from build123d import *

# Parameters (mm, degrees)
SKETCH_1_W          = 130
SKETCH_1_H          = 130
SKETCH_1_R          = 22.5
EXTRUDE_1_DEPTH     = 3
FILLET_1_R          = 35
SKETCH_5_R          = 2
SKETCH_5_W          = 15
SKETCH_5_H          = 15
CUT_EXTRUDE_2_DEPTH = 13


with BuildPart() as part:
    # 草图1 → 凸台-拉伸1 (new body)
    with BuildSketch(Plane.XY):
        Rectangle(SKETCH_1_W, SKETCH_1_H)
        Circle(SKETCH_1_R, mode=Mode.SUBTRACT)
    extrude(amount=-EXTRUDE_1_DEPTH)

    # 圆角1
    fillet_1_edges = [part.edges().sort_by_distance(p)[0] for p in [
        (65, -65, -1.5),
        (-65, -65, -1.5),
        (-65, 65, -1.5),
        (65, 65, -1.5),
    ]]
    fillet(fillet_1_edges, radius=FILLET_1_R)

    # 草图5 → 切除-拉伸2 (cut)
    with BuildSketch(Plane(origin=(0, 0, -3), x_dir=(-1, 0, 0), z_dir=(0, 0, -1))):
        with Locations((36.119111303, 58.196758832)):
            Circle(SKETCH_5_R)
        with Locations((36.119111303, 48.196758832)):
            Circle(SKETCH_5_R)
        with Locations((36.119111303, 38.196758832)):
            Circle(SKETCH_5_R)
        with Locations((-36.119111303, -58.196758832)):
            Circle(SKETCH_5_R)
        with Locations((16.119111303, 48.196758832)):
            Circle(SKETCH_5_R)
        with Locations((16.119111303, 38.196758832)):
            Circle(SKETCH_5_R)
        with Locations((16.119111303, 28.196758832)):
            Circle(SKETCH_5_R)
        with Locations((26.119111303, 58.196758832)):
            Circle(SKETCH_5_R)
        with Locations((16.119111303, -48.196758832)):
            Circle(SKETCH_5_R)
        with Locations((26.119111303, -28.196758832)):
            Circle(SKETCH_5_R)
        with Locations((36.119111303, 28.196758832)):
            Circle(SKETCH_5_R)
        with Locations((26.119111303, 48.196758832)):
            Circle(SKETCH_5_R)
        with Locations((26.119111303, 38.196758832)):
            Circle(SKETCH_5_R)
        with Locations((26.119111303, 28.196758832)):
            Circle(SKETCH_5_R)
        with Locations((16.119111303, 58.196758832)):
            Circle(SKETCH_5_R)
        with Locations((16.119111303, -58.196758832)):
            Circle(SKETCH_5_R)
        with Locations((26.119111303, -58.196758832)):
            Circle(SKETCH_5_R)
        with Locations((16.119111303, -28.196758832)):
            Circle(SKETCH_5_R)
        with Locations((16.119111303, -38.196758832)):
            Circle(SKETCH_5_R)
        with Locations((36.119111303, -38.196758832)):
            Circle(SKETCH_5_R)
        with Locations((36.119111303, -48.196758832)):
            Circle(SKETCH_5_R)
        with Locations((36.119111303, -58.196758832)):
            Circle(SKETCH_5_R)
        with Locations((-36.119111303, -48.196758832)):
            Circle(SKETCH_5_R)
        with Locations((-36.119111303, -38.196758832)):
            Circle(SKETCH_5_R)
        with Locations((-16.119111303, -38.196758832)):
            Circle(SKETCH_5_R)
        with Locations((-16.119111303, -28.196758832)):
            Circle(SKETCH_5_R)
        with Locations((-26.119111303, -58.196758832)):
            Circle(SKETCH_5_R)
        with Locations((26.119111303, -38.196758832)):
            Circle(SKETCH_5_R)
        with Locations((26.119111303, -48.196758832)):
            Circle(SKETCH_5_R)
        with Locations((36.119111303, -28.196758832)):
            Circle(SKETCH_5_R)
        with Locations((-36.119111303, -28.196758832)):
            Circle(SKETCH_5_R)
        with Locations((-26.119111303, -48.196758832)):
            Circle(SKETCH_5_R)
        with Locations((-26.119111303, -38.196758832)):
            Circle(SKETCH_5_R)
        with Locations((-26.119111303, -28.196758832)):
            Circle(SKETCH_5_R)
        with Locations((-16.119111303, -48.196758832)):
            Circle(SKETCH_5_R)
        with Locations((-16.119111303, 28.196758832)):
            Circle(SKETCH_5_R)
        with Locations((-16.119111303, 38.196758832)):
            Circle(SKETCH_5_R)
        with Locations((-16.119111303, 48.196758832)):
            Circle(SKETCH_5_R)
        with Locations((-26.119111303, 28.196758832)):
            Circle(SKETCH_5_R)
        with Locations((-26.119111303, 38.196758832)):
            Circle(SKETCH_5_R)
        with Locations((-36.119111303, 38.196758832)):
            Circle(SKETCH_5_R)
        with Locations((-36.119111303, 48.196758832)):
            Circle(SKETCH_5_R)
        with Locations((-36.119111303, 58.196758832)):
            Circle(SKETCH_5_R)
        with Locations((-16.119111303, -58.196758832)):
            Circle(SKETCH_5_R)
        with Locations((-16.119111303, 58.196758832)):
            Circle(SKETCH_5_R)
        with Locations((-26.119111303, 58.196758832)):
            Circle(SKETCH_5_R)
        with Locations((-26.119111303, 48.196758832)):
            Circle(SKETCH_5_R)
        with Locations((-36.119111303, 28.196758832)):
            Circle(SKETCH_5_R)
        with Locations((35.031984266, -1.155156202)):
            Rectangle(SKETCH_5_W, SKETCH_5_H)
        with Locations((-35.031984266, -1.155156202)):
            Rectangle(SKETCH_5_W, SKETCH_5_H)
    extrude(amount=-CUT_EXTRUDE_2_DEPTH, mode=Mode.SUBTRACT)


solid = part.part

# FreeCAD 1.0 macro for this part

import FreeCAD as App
import Part
import Sketcher
Q = App.Units.Quantity


def edges_at(feature, points):
    """Names of the edges that pass closest to the given points."""
    edges = feature.Shape.Edges
    near = lambda p: min(range(len(edges)), key=lambda i: edges[i].distToShape(Part.Vertex(*p))[0])
    return sorted({f"Edge{near(p) + 1}" for p in points})


def add_polygon(sketch, points):
    """Adds a closed chain of lines whose ends are joined by coincident constraints."""
    first, n = sketch.GeometryCount, len(points)
    for a, b in zip(points, points[1:] + points[:1]):
        sketch.addGeometry(Part.LineSegment(App.Vector(*a, 0), App.Vector(*b, 0)), False)
    for i in range(n):
        sketch.addConstraint(Sketcher.Constraint("Coincident", first + i, 2, first + (i + 1) % n, 1))

doc = App.newDocument("Part")
params = doc.addObject("Spreadsheet::Sheet", "Params")
for row, (alias, value) in enumerate([
    ("sketch1_diameter", "45 mm"),
    ("sketch1_width", "130 mm"),
    ("pad1_length", "3 mm"),
    ("fillet_radius", "35 mm"),
    ("sketch2_diameter", "4 mm"),
    ("sketch2_width", "15 mm"),
    ("pocket1_length", "13 mm"),
], start=1):
    params.set(f"A{row}", alias)
    params.set(f"B{row}", "=" + value)
    params.setAlias(f"B{row}", alias)

body = doc.addObject("PartDesign::Body", "Body")

# Sketch on XY plane
sketch1 = doc.addObject("Sketcher::SketchObject", "Sketch")
body.addObject(sketch1)
sketch1.AttachmentSupport = (doc.XY_Plane, [""])
sketch1.MapMode = "FlatFace"
add_polygon(sketch1, [(-65, 65), (-65, -65), (65, -65), (65, 65)])  # lines 0-3
sketch1.addGeometry(Part.Circle(App.Vector(0, 0, 0), App.Vector(0, 0, 1), 22), False)  # 4
sketch1.addConstraint(Sketcher.Constraint("Vertical", 0))
sketch1.addConstraint(Sketcher.Constraint("Horizontal", 1))
sketch1.addConstraint(Sketcher.Constraint("Vertical", 2))
sketch1.addConstraint(Sketcher.Constraint("Horizontal", 3))
sketch1.addConstraint(Sketcher.Constraint("Coincident", 4, 3, -1, 1))
sketch1.addConstraint(Sketcher.Constraint("Symmetric", 0, 2, 2, 2, -1, 1))
sketch1.addConstraint(Sketcher.Constraint("Equal", 3, 0))
sketch1.addConstraint(Sketcher.Constraint("Diameter", 4, Q("45 mm")))
sketch1.addConstraint(Sketcher.Constraint("DistanceX", 1, 1, 1, 2, Q("130 mm")))
sketch1.setExpression("Constraints[11]", "Params.sketch1_diameter")
sketch1.setExpression("Constraints[12]", "Params.sketch1_width")
pad1 = doc.addObject("PartDesign::Pad", "Pad")
body.addObject(pad1)
pad1.Profile = sketch1
pad1.setExpression("Length", "Params.pad1_length")
pad1.Reversed = True
doc.recompute()

fillet = doc.addObject("PartDesign::Fillet", "Fillet")
body.addObject(fillet)
fillet.Base = (pad1, edges_at(pad1, [
    (65, -65, -1.5),
    (-65, -65, -1.5),
    (-65, 65, -1.5),
    (65, 65, -1.5),
]))
fillet.setExpression("Radius", "Params.fillet_radius")

# Sketch on XY plane
sketch2 = doc.addObject("Sketcher::SketchObject", "Sketch001")
body.addObject(sketch2)
sketch2.AttachmentSupport = (doc.XY_Plane, [""])
sketch2.MapMode = "FlatFace"
sketch2.AttachmentOffset = App.Placement(App.Vector(0, 0, -3), App.Rotation())
sketch2.addGeometry(Part.Circle(App.Vector(-36.1, 58.2, 0), App.Vector(0, 0, 1), 2), False)  # 0
sketch2.addGeometry(Part.Circle(App.Vector(-36.1, 48.2, 0), App.Vector(0, 0, 1), 2), False)  # 1
sketch2.addGeometry(Part.Circle(App.Vector(-36.1, 38.2, 0), App.Vector(0, 0, 1), 2), False)  # 2
sketch2.addGeometry(Part.Circle(App.Vector(36.1, -58.2, 0), App.Vector(0, 0, 1), 2), False)  # 3
sketch2.addGeometry(Part.Circle(App.Vector(-16.1, 48.2, 0), App.Vector(0, 0, 1), 2), False)  # 4
sketch2.addGeometry(Part.Circle(App.Vector(-16.1, 38.2, 0), App.Vector(0, 0, 1), 2), False)  # 5
sketch2.addGeometry(Part.Circle(App.Vector(-16.1, 28.2, 0), App.Vector(0, 0, 1), 2), False)  # 6
sketch2.addGeometry(Part.Circle(App.Vector(-26.1, 58.2, 0), App.Vector(0, 0, 1), 2), False)  # 7
sketch2.addGeometry(Part.Circle(App.Vector(-16.1, -48.2, 0), App.Vector(0, 0, 1), 2), False)  # 8
sketch2.addGeometry(Part.Circle(App.Vector(-26.1, -28.2, 0), App.Vector(0, 0, 1), 2), False)  # 9
sketch2.addGeometry(Part.Circle(App.Vector(-36.1, 28.2, 0), App.Vector(0, 0, 1), 2), False)  # 10
sketch2.addGeometry(Part.Circle(App.Vector(-26.1, 48.2, 0), App.Vector(0, 0, 1), 2), False)  # 11
sketch2.addGeometry(Part.Circle(App.Vector(-26.1, 38.2, 0), App.Vector(0, 0, 1), 2), False)  # 12
sketch2.addGeometry(Part.Circle(App.Vector(-26.1, 28.2, 0), App.Vector(0, 0, 1), 2), False)  # 13
sketch2.addGeometry(Part.Circle(App.Vector(-16.1, 58.2, 0), App.Vector(0, 0, 1), 2), False)  # 14
sketch2.addGeometry(Part.Circle(App.Vector(-16.1, -58.2, 0), App.Vector(0, 0, 1), 2), False)  # 15
sketch2.addGeometry(Part.Circle(App.Vector(-26.1, -58.2, 0), App.Vector(0, 0, 1), 2), False)  # 16
sketch2.addGeometry(Part.Circle(App.Vector(-16.1, -28.2, 0), App.Vector(0, 0, 1), 2), False)  # 17
sketch2.addGeometry(Part.Circle(App.Vector(-16.1, -38.2, 0), App.Vector(0, 0, 1), 2), False)  # 18
sketch2.addGeometry(Part.Circle(App.Vector(-36.1, -38.2, 0), App.Vector(0, 0, 1), 2), False)  # 19
sketch2.addGeometry(Part.Circle(App.Vector(-36.1, -48.2, 0), App.Vector(0, 0, 1), 2), False)  # 20
sketch2.addGeometry(Part.Circle(App.Vector(-36.1, -58.2, 0), App.Vector(0, 0, 1), 2), False)  # 21
sketch2.addGeometry(Part.Circle(App.Vector(36.1, -48.2, 0), App.Vector(0, 0, 1), 2), False)  # 22
sketch2.addGeometry(Part.Circle(App.Vector(36.1, -38.2, 0), App.Vector(0, 0, 1), 2), False)  # 23
sketch2.addGeometry(Part.Circle(App.Vector(16.1, -38.2, 0), App.Vector(0, 0, 1), 2), False)  # 24
sketch2.addGeometry(Part.Circle(App.Vector(16.1, -28.2, 0), App.Vector(0, 0, 1), 2), False)  # 25
sketch2.addGeometry(Part.Circle(App.Vector(26.1, -58.2, 0), App.Vector(0, 0, 1), 2), False)  # 26
sketch2.addGeometry(Part.Circle(App.Vector(-26.1, -38.2, 0), App.Vector(0, 0, 1), 2), False)  # 27
sketch2.addGeometry(Part.Circle(App.Vector(-26.1, -48.2, 0), App.Vector(0, 0, 1), 2), False)  # 28
sketch2.addGeometry(Part.Circle(App.Vector(-36.1, -28.2, 0), App.Vector(0, 0, 1), 2), False)  # 29
sketch2.addGeometry(Part.Circle(App.Vector(36.1, -28.2, 0), App.Vector(0, 0, 1), 2), False)  # 30
sketch2.addGeometry(Part.Circle(App.Vector(26.1, -48.2, 0), App.Vector(0, 0, 1), 2), False)  # 31
sketch2.addGeometry(Part.Circle(App.Vector(26.1, -38.2, 0), App.Vector(0, 0, 1), 2), False)  # 32
sketch2.addGeometry(Part.Circle(App.Vector(26.1, -28.2, 0), App.Vector(0, 0, 1), 2), False)  # 33
sketch2.addGeometry(Part.Circle(App.Vector(16.1, -48.2, 0), App.Vector(0, 0, 1), 2), False)  # 34
sketch2.addGeometry(Part.Circle(App.Vector(16.1, 28.2, 0), App.Vector(0, 0, 1), 2), False)  # 35
sketch2.addGeometry(Part.Circle(App.Vector(16.1, 38.2, 0), App.Vector(0, 0, 1), 2), False)  # 36
sketch2.addGeometry(Part.Circle(App.Vector(16.1, 48.2, 0), App.Vector(0, 0, 1), 2), False)  # 37
sketch2.addGeometry(Part.Circle(App.Vector(26.1, 28.2, 0), App.Vector(0, 0, 1), 2), False)  # 38
sketch2.addGeometry(Part.Circle(App.Vector(26.1, 38.2, 0), App.Vector(0, 0, 1), 2), False)  # 39
sketch2.addGeometry(Part.Circle(App.Vector(36.1, 38.2, 0), App.Vector(0, 0, 1), 2), False)  # 40
sketch2.addGeometry(Part.Circle(App.Vector(36.1, 48.2, 0), App.Vector(0, 0, 1), 2), False)  # 41
sketch2.addGeometry(Part.Circle(App.Vector(36.1, 58.2, 0), App.Vector(0, 0, 1), 2), False)  # 42
sketch2.addGeometry(Part.Circle(App.Vector(16.1, -58.2, 0), App.Vector(0, 0, 1), 2), False)  # 43
sketch2.addGeometry(Part.Circle(App.Vector(16.1, 58.2, 0), App.Vector(0, 0, 1), 2), False)  # 44
sketch2.addGeometry(Part.Circle(App.Vector(26.1, 58.2, 0), App.Vector(0, 0, 1), 2), False)  # 45
sketch2.addGeometry(Part.Circle(App.Vector(26.1, 48.2, 0), App.Vector(0, 0, 1), 2), False)  # 46
sketch2.addGeometry(Part.Circle(App.Vector(36.1, 28.2, 0), App.Vector(0, 0, 1), 2), False)  # 47
add_polygon(sketch2, [(-27.5, 6.3), (-27.5, -8.7), (-42.5, -8.7), (-42.5, 6.3)])  # lines 48-51
add_polygon(sketch2, [(42.5, 6.3), (42.5, -8.7), (27.5, -8.7), (27.5, 6.3)])  # lines 52-55
sketch2.addConstraint(Sketcher.Constraint("Vertical", 48))
sketch2.addConstraint(Sketcher.Constraint("Horizontal", 49))
sketch2.addConstraint(Sketcher.Constraint("Vertical", 50))
sketch2.addConstraint(Sketcher.Constraint("Horizontal", 51))
sketch2.addConstraint(Sketcher.Constraint("Vertical", 52))
sketch2.addConstraint(Sketcher.Constraint("Horizontal", 53))
sketch2.addConstraint(Sketcher.Constraint("Vertical", 54))
sketch2.addConstraint(Sketcher.Constraint("Horizontal", 55))
sketch2.addConstraint(Sketcher.Constraint("Equal", 0, 1))
sketch2.addConstraint(Sketcher.Constraint("Equal", 1, 2))
sketch2.addConstraint(Sketcher.Constraint("Equal", 2, 3))
sketch2.addConstraint(Sketcher.Constraint("Equal", 3, 4))
sketch2.addConstraint(Sketcher.Constraint("Equal", 4, 5))
sketch2.addConstraint(Sketcher.Constraint("Equal", 5, 6))
sketch2.addConstraint(Sketcher.Constraint("Equal", 6, 7))
sketch2.addConstraint(Sketcher.Constraint("Equal", 7, 8))
sketch2.addConstraint(Sketcher.Constraint("Equal", 8, 9))
sketch2.addConstraint(Sketcher.Constraint("Equal", 9, 10))
sketch2.addConstraint(Sketcher.Constraint("Equal", 10, 11))
sketch2.addConstraint(Sketcher.Constraint("Equal", 11, 12))
sketch2.addConstraint(Sketcher.Constraint("Equal", 12, 13))
sketch2.addConstraint(Sketcher.Constraint("Equal", 13, 14))
sketch2.addConstraint(Sketcher.Constraint("Equal", 14, 15))
sketch2.addConstraint(Sketcher.Constraint("Equal", 15, 16))
sketch2.addConstraint(Sketcher.Constraint("Equal", 16, 17))
sketch2.addConstraint(Sketcher.Constraint("Equal", 17, 18))
sketch2.addConstraint(Sketcher.Constraint("Equal", 18, 19))
sketch2.addConstraint(Sketcher.Constraint("Equal", 19, 20))
sketch2.addConstraint(Sketcher.Constraint("Equal", 20, 21))
sketch2.addConstraint(Sketcher.Constraint("Equal", 21, 22))
sketch2.addConstraint(Sketcher.Constraint("Equal", 22, 23))
sketch2.addConstraint(Sketcher.Constraint("Equal", 23, 24))
sketch2.addConstraint(Sketcher.Constraint("Equal", 24, 25))
sketch2.addConstraint(Sketcher.Constraint("Equal", 25, 26))
sketch2.addConstraint(Sketcher.Constraint("Equal", 26, 27))
sketch2.addConstraint(Sketcher.Constraint("Equal", 27, 28))
sketch2.addConstraint(Sketcher.Constraint("Equal", 28, 29))
sketch2.addConstraint(Sketcher.Constraint("Equal", 29, 30))
sketch2.addConstraint(Sketcher.Constraint("Equal", 30, 31))
sketch2.addConstraint(Sketcher.Constraint("Equal", 31, 32))
sketch2.addConstraint(Sketcher.Constraint("Equal", 32, 33))
sketch2.addConstraint(Sketcher.Constraint("Equal", 33, 34))
sketch2.addConstraint(Sketcher.Constraint("Equal", 34, 35))
sketch2.addConstraint(Sketcher.Constraint("Equal", 35, 36))
sketch2.addConstraint(Sketcher.Constraint("Equal", 36, 37))
sketch2.addConstraint(Sketcher.Constraint("Equal", 37, 38))
sketch2.addConstraint(Sketcher.Constraint("Equal", 38, 39))
sketch2.addConstraint(Sketcher.Constraint("Equal", 39, 40))
sketch2.addConstraint(Sketcher.Constraint("Equal", 40, 41))
sketch2.addConstraint(Sketcher.Constraint("Equal", 41, 42))
sketch2.addConstraint(Sketcher.Constraint("Equal", 42, 43))
sketch2.addConstraint(Sketcher.Constraint("Equal", 43, 44))
sketch2.addConstraint(Sketcher.Constraint("Equal", 44, 45))
sketch2.addConstraint(Sketcher.Constraint("Equal", 45, 46))
sketch2.addConstraint(Sketcher.Constraint("Equal", 46, 47))
sketch2.addConstraint(Sketcher.Constraint("Symmetric", 0, 3, 3, 3, -1, 1))
sketch2.addConstraint(Sketcher.Constraint("Symmetric", 1, 3, 22, 3, -1, 1))
sketch2.addConstraint(Sketcher.Constraint("Symmetric", 2, 3, 23, 3, -1, 1))
sketch2.addConstraint(Sketcher.Constraint("Symmetric", 5, 3, 24, 3, -1, 1))
sketch2.addConstraint(Sketcher.Constraint("Symmetric", 6, 3, 25, 3, -1, 1))
sketch2.addConstraint(Sketcher.Constraint("Symmetric", 7, 3, 26, 3, -1, 1))
sketch2.addConstraint(Sketcher.Constraint("Symmetric", 10, 3, 30, 3, -1, 1))
sketch2.addConstraint(Sketcher.Constraint("Symmetric", 11, 3, 31, 3, -1, 1))
sketch2.addConstraint(Sketcher.Constraint("Symmetric", 12, 3, 32, 3, -1, 1))
sketch2.addConstraint(Sketcher.Constraint("Symmetric", 13, 3, 33, 3, -1, 1))
sketch2.addConstraint(Sketcher.Constraint("Symmetric", 4, 3, 34, 3, -1, 1))
sketch2.addConstraint(Sketcher.Constraint("Symmetric", 17, 3, 35, 3, -1, 1))
sketch2.addConstraint(Sketcher.Constraint("Symmetric", 18, 3, 36, 3, -1, 1))
sketch2.addConstraint(Sketcher.Constraint("Symmetric", 8, 3, 37, 3, -1, 1))
sketch2.addConstraint(Sketcher.Constraint("Symmetric", 9, 3, 38, 3, -1, 1))
sketch2.addConstraint(Sketcher.Constraint("Symmetric", 27, 3, 39, 3, -1, 1))
sketch2.addConstraint(Sketcher.Constraint("Symmetric", 19, 3, 40, 3, -1, 1))
sketch2.addConstraint(Sketcher.Constraint("Symmetric", 20, 3, 41, 3, -1, 1))
sketch2.addConstraint(Sketcher.Constraint("Symmetric", 21, 3, 42, 3, -1, 1))
sketch2.addConstraint(Sketcher.Constraint("Symmetric", 14, 3, 43, 3, -1, 1))
sketch2.addConstraint(Sketcher.Constraint("Symmetric", 15, 3, 44, 3, -1, 1))
sketch2.addConstraint(Sketcher.Constraint("Symmetric", 16, 3, 45, 3, -1, 1))
sketch2.addConstraint(Sketcher.Constraint("Symmetric", 28, 3, 46, 3, -1, 1))
sketch2.addConstraint(Sketcher.Constraint("Symmetric", 29, 3, 47, 3, -1, 1))
sketch2.addConstraint(Sketcher.Constraint("Symmetric", 3, 3, 21, 3, -2))
sketch2.addConstraint(Sketcher.Constraint("Symmetric", 20, 3, 22, 3, -2))
sketch2.addConstraint(Sketcher.Constraint("Symmetric", 19, 3, 23, 3, -2))
sketch2.addConstraint(Sketcher.Constraint("Symmetric", 18, 3, 24, 3, -2))
sketch2.addConstraint(Sketcher.Constraint("Symmetric", 17, 3, 25, 3, -2))
sketch2.addConstraint(Sketcher.Constraint("Symmetric", 16, 3, 26, 3, -2))
sketch2.addConstraint(Sketcher.Constraint("Symmetric", 29, 3, 30, 3, -2))
sketch2.addConstraint(Sketcher.Constraint("Symmetric", 28, 3, 31, 3, -2))
sketch2.addConstraint(Sketcher.Constraint("Symmetric", 27, 3, 32, 3, -2))
sketch2.addConstraint(Sketcher.Constraint("Symmetric", 9, 3, 33, 3, -2))
sketch2.addConstraint(Sketcher.Constraint("Symmetric", 8, 3, 34, 3, -2))
sketch2.addConstraint(Sketcher.Constraint("Symmetric", 15, 3, 43, 3, -2))
sketch2.addConstraint(Sketcher.Constraint("Symmetric", 49, 2, 52, 2, -2))
sketch2.addConstraint(Sketcher.Constraint("Symmetric", 51, 2, 54, 2, -2))
sketch2.addConstraint(Sketcher.Constraint("Horizontal", 1, 3, 4, 3))
sketch2.addConstraint(Sketcher.Constraint("Horizontal", 2, 3, 5, 3))
sketch2.addConstraint(Sketcher.Constraint("Horizontal", 0, 3, 7, 3))
sketch2.addConstraint(Sketcher.Constraint("Horizontal", 6, 3, 10, 3))
sketch2.addConstraint(Sketcher.Constraint("Horizontal", 4, 3, 11, 3))
sketch2.addConstraint(Sketcher.Constraint("Horizontal", 5, 3, 12, 3))
sketch2.addConstraint(Sketcher.Constraint("Horizontal", 10, 3, 13, 3))
sketch2.addConstraint(Sketcher.Constraint("Horizontal", 7, 3, 14, 3))
sketch2.addConstraint(Sketcher.Constraint("Vertical", 0, 3, 1, 3))
sketch2.addConstraint(Sketcher.Constraint("Vertical", 1, 3, 2, 3))
sketch2.addConstraint(Sketcher.Constraint("Vertical", 4, 3, 5, 3))
sketch2.addConstraint(Sketcher.Constraint("Vertical", 5, 3, 6, 3))
sketch2.addConstraint(Sketcher.Constraint("Vertical", 7, 3, 9, 3))
sketch2.addConstraint(Sketcher.Constraint("Vertical", 2, 3, 10, 3))
sketch2.addConstraint(Sketcher.Constraint("Vertical", 9, 3, 11, 3))
sketch2.addConstraint(Sketcher.Constraint("Vertical", 11, 3, 12, 3))
sketch2.addConstraint(Sketcher.Constraint("Vertical", 8, 3, 14, 3))
sketch2.addConstraint(Sketcher.Constraint("Equal", 55, 48))
sketch2.addConstraint(Sketcher.Constraint("Diameter", 0, Q("4 mm")))
sketch2.addConstraint(Sketcher.Constraint("DistanceX", 49, 2, 49, 1, Q("15 mm")))
sketch2.addConstraint(Sketcher.Constraint("DistanceY", 1, 3, 0, 3, Q("10 mm")))
sketch2.addConstraint(Sketcher.Constraint("DistanceY", 2, 3, 1, 3, Q("10 mm")))
sketch2.addConstraint(Sketcher.Constraint("DistanceX", 1, 3, 4, 3, Q("20 mm")))
sketch2.addConstraint(Sketcher.Constraint("DistanceY", 6, 3, 5, 3, Q("10 mm")))
sketch2.addConstraint(Sketcher.Constraint("DistanceX", 0, 3, 7, 3, Q("10 mm")))
sketch2.addConstraint(Sketcher.Constraint("DistanceX", 0, 3, -1, 1, Q("36.119111 mm")))
sketch2.addConstraint(Sketcher.Constraint("DistanceY", -1, 1, 0, 3, Q("58.196759 mm")))
sketch2.addConstraint(Sketcher.Constraint("DistanceX", 48, 2, -1, 1, Q("27.531984 mm")))
sketch2.addConstraint(Sketcher.Constraint("DistanceY", 48, 2, -1, 1, Q("8.655156 mm")))
sketch2.setExpression("Constraints[119]", "Params.sketch2_diameter")
sketch2.setExpression("Constraints[120]", "Params.sketch2_width")
pocket1 = doc.addObject("PartDesign::Pocket", "Pocket")
body.addObject(pocket1)
pocket1.Profile = sketch2
pocket1.setExpression("Length", "Params.pocket1_length")
pocket1.Reversed = True

doc.recompute()
